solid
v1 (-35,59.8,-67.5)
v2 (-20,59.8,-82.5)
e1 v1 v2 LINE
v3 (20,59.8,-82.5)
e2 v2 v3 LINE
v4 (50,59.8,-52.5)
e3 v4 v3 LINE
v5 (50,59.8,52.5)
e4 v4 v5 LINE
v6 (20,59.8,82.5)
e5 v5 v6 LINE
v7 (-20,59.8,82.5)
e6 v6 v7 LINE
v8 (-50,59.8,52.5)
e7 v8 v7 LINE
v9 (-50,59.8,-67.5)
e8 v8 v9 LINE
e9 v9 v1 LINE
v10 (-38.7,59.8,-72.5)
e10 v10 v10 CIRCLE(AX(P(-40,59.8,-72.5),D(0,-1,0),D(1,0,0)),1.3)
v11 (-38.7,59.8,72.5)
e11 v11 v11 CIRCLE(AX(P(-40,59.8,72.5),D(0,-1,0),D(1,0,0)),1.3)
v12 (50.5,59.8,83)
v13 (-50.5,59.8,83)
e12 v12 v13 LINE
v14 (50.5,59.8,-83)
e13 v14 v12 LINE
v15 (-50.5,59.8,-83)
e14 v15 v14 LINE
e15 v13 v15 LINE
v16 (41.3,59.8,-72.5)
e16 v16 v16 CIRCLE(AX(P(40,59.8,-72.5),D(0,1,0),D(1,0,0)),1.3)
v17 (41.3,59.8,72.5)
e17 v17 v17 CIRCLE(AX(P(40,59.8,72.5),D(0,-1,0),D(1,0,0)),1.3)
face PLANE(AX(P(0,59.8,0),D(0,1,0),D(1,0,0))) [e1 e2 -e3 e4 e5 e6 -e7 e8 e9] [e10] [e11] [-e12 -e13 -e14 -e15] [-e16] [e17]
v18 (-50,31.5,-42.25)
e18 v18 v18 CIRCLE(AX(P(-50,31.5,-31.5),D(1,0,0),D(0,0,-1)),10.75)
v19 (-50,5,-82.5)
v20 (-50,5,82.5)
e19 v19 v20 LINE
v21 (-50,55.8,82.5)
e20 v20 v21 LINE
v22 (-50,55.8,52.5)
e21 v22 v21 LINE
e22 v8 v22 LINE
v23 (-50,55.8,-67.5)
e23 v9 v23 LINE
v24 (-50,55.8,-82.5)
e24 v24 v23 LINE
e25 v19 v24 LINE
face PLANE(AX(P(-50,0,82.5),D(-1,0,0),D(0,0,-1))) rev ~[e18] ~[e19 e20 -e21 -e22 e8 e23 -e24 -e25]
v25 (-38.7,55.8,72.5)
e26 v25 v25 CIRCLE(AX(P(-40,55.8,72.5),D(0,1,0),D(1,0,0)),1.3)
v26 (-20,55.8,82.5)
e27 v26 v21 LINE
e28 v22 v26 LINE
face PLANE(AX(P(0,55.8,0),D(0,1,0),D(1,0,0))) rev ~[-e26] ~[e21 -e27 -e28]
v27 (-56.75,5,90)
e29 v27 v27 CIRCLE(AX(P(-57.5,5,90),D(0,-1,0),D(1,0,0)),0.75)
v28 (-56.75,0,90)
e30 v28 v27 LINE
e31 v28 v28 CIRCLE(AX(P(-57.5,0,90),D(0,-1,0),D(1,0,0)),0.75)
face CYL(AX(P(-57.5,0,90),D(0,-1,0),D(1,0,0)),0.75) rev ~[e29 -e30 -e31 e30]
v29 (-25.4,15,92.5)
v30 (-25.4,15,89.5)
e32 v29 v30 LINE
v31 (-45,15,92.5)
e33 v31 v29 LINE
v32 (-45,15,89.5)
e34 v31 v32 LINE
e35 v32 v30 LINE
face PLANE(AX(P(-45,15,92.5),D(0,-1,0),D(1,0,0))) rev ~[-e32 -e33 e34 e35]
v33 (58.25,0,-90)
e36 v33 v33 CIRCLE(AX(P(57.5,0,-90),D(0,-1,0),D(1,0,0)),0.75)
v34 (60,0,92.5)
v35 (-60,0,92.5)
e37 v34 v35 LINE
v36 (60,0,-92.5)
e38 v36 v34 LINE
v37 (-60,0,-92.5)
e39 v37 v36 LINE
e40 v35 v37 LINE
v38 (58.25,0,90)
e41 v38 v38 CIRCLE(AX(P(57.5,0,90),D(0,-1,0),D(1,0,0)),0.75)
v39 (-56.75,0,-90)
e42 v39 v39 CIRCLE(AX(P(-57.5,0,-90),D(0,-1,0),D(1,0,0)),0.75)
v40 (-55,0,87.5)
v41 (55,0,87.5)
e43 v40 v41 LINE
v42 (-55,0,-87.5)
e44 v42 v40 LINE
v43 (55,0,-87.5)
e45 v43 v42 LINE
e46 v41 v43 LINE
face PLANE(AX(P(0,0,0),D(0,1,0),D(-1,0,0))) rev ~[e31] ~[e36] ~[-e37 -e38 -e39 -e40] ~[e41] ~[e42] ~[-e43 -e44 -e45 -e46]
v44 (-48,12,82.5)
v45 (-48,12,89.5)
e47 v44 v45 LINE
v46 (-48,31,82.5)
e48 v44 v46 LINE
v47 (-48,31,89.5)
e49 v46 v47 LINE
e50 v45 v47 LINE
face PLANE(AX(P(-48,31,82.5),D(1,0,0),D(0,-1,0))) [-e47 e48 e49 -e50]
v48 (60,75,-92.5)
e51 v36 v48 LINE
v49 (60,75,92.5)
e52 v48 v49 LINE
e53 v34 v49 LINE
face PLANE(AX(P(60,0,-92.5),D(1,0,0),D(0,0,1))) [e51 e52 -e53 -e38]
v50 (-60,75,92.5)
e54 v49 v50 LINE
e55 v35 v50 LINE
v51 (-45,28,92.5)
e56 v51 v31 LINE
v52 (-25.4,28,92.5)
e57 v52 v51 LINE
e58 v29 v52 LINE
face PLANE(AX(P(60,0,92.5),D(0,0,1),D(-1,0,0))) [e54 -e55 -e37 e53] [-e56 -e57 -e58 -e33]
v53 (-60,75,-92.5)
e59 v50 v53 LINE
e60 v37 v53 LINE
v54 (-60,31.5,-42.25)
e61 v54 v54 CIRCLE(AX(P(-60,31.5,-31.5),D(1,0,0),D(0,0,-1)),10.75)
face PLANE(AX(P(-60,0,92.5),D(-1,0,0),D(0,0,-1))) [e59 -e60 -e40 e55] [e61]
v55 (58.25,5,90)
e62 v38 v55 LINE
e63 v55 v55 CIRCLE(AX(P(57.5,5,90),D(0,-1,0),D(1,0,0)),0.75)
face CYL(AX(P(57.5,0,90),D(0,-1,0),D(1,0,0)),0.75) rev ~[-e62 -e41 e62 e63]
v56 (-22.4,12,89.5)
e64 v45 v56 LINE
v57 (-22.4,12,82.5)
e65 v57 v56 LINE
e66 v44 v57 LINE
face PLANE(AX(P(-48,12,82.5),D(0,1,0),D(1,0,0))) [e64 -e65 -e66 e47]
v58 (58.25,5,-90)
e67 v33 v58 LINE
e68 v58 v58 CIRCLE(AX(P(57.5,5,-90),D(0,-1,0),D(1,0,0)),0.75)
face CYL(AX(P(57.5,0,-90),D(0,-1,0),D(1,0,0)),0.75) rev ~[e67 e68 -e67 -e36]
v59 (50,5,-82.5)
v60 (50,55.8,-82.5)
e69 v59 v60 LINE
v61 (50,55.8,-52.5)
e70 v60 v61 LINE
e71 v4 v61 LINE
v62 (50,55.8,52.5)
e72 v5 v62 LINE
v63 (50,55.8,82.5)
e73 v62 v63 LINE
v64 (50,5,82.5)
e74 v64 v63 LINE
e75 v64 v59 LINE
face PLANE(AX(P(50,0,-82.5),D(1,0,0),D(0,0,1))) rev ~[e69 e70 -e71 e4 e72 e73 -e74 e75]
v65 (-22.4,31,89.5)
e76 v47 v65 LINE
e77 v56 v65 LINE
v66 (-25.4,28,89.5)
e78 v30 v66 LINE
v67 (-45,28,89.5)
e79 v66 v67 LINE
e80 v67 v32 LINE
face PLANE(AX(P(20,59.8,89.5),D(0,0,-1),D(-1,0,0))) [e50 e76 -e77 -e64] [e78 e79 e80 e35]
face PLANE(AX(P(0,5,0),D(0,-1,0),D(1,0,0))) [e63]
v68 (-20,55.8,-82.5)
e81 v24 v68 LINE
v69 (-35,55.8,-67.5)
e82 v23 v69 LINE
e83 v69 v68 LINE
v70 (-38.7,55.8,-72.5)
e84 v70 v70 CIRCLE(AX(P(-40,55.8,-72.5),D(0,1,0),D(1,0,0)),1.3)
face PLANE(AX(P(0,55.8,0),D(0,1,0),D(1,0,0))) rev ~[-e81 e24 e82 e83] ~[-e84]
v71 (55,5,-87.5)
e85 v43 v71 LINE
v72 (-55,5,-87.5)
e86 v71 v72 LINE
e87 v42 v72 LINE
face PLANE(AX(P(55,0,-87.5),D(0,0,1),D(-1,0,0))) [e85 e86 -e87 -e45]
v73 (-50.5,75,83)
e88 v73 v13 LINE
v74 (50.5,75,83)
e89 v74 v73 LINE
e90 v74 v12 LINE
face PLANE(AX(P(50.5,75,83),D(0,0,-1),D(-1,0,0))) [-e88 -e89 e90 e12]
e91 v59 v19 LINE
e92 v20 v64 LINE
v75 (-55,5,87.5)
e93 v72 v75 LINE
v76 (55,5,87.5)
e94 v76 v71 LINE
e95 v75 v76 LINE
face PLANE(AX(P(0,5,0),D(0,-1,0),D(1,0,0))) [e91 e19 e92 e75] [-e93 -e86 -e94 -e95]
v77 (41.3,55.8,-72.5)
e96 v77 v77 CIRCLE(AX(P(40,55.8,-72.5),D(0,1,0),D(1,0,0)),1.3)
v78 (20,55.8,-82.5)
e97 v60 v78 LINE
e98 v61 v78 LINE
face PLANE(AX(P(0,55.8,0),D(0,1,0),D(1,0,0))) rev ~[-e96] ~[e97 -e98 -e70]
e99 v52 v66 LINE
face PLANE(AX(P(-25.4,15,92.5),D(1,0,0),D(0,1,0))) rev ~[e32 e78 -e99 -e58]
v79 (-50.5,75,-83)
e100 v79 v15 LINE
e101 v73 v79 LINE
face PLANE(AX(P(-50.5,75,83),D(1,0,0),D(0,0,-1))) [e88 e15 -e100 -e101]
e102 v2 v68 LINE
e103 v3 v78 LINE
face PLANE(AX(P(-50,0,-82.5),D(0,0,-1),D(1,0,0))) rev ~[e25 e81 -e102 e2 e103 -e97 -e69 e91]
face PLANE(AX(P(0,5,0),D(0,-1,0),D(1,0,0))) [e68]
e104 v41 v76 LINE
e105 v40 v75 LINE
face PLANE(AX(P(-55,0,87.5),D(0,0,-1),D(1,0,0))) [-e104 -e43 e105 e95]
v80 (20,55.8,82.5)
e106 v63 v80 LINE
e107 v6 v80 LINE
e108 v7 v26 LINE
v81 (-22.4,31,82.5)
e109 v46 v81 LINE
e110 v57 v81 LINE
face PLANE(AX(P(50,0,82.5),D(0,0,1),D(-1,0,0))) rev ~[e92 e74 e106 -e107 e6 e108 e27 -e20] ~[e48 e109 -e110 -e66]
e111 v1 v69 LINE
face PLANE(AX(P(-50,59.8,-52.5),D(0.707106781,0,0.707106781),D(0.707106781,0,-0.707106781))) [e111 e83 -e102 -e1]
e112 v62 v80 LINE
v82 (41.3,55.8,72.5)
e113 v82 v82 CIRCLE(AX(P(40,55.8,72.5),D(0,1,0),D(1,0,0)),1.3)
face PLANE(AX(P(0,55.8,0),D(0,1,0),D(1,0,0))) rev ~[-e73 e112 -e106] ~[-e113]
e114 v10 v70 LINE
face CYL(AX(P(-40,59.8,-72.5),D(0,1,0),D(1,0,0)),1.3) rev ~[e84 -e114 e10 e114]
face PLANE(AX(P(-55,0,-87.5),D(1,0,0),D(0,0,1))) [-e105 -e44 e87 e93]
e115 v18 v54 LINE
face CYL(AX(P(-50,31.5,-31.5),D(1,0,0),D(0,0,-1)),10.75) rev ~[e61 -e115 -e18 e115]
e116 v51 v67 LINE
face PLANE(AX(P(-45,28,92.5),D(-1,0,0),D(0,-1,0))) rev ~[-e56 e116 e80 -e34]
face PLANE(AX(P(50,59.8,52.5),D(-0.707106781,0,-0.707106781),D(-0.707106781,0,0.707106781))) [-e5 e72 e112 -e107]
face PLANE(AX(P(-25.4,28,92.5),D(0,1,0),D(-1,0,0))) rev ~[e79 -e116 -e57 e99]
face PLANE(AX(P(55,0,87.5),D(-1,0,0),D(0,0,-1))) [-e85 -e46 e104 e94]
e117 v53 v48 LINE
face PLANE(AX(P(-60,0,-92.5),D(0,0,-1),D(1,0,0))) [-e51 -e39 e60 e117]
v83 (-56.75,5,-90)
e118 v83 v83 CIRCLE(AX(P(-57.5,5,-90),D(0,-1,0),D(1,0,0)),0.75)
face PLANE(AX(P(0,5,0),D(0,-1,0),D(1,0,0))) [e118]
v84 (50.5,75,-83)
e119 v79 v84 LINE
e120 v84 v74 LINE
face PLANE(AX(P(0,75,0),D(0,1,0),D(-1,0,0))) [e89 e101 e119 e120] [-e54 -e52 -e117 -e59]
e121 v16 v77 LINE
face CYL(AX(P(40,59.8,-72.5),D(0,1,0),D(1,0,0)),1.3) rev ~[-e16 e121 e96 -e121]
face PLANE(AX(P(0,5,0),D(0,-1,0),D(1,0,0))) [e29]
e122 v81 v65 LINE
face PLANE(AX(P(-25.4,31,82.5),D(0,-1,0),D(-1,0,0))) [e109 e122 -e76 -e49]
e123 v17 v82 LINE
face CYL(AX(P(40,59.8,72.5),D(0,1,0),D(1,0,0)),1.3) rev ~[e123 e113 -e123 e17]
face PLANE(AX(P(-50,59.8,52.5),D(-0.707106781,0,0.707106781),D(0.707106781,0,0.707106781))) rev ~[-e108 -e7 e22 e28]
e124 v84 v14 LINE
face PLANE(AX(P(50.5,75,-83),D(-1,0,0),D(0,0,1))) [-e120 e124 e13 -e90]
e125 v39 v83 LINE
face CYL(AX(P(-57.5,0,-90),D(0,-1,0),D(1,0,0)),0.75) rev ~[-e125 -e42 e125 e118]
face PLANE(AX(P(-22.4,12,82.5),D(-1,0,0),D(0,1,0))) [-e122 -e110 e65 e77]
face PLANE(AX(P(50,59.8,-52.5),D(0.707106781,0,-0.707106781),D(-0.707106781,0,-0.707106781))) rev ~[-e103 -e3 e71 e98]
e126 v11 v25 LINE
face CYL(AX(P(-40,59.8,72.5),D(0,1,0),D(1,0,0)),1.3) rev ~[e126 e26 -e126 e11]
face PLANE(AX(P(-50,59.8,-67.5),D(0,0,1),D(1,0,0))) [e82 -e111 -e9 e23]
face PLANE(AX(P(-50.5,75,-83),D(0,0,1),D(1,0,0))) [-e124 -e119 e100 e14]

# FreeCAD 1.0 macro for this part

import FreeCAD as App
import Part
import Sketcher
from FreeCAD import Vector

doc = App.newDocument("Part")
body = doc.addObject("PartDesign::Body", "Body")

sketch1 = doc.addObject("Sketcher::SketchObject", "Sketch")
body.addObject(sketch1)
sketch1.AttachmentSupport = (doc.XZ_Plane, [""])
sketch1.MapMode = "FlatFace"
sketch1.addGeometry([
    Part.LineSegment(Vector(-60, 92, 0), Vector(60, 92, 0)),
    Part.LineSegment(Vector(60, 92, 0), Vector(60, -92, 0)),
    Part.LineSegment(Vector(60, -92, 0), Vector(-60, -92, 0)),
    Part.LineSegment(Vector(-60, -92, 0), Vector(-60, 92, 0)),
    Part.LineSegment(Vector(50, -82, 0), Vector(50, 82, 0)),
    Part.LineSegment(Vector(50, 82, 0), Vector(-50, 82, 0)),
    Part.LineSegment(Vector(-50, 82, 0), Vector(-50, -82, 0)),
    Part.LineSegment(Vector(-50, -82, 0), Vector(50, -82, 0)),
], False)
sketch1.addConstraint([
    Sketcher.Constraint("Coincident", 0, 2, 1, 1),
    Sketcher.Constraint("Coincident", 1, 2, 2, 1),
    Sketcher.Constraint("Coincident", 2, 2, 3, 1),
    Sketcher.Constraint("Coincident", 3, 2, 0, 1),
    Sketcher.Constraint("Coincident", 4, 2, 5, 1),
    Sketcher.Constraint("Coincident", 5, 2, 6, 1),
    Sketcher.Constraint("Coincident", 6, 2, 7, 1),
    Sketcher.Constraint("Coincident", 7, 2, 4, 1),
    Sketcher.Constraint("Horizontal", 0),
    Sketcher.Constraint("Vertical", 1),
    Sketcher.Constraint("Horizontal", 2),
    Sketcher.Constraint("Vertical", 3),
    Sketcher.Constraint("Vertical", 4),
    Sketcher.Constraint("Horizontal", 5),
    Sketcher.Constraint("Vertical", 6),
    Sketcher.Constraint("Horizontal", 7),
    Sketcher.Constraint("Symmetric", 0, 2, 2, 2, -1, 1),
    Sketcher.Constraint("Symmetric", 4, 2, 6, 2, -1, 1),
    Sketcher.Constraint("DistanceX", 0, 1, 0, 2, 120.0),
    Sketcher.Constraint("DistanceX", 5, 2, 5, 1, 100.0),
    Sketcher.Constraint("DistanceY", 1, 2, 1, 1, 185.0),
    Sketcher.Constraint("DistanceY", 4, 1, 4, 2, 165.0),
])
pad1 = doc.addObject("PartDesign::Pad", "Pad")
body.addObject(pad1)
pad1.Profile = sketch1
pad1.Length = 75
pad1.Reversed = True

sketch2 = doc.addObject("Sketcher::SketchObject", "Sketch001")
body.addObject(sketch2)
sketch2.AttachmentSupport = (doc.XZ_Plane, [""])
sketch2.MapMode = "FlatFace"
sketch2.AttachmentOffset = App.Placement(Vector(0, 0, -59.8), App.Rotation())
sketch2.addGeometry([
    Part.LineSegment(Vector(50, -52, 0), Vector(50, -82, 0)),
    Part.LineSegment(Vector(50, -82, 0), Vector(20, -82, 0)),
    Part.LineSegment(Vector(20, -82, 0), Vector(50, -52, 0)),
    Part.LineSegment(Vector(50, 82, 0), Vector(50, 52, 0)),
    Part.LineSegment(Vector(50, 52, 0), Vector(20, 82, 0)),
    Part.LineSegment(Vector(20, 82, 0), Vector(50, 82, 0)),
    Part.LineSegment(Vector(-50, -52, 0), Vector(-20, -82, 0)),
    Part.LineSegment(Vector(-20, -82, 0), Vector(-50, -82, 0)),
    Part.LineSegment(Vector(-50, -82, 0), Vector(-50, -52, 0)),
    Part.LineSegment(Vector(-50, 82, 0), Vector(-20, 82, 0)),
    Part.LineSegment(Vector(-20, 82, 0), Vector(-50, 52, 0)),
    Part.LineSegment(Vector(-50, 52, 0), Vector(-50, 82, 0)),
], False)
sketch2.addConstraint([
    Sketcher.Constraint("Coincident", 0, 2, 1, 1),
    Sketcher.Constraint("Coincident", 1, 2, 2, 1),
    Sketcher.Constraint("Coincident", 2, 2, 0, 1),
    Sketcher.Constraint("Coincident", 3, 2, 4, 1),
    Sketcher.Constraint("Coincident", 4, 2, 5, 1),
    Sketcher.Constraint("Coincident", 5, 2, 3, 1),
    Sketcher.Constraint("Coincident", 6, 2, 7, 1),
    Sketcher.Constraint("Coincident", 7, 2, 8, 1),
    Sketcher.Constraint("Coincident", 8, 2, 6, 1),
    Sketcher.Constraint("Coincident", 9, 2, 10, 1),
    Sketcher.Constraint("Coincident", 10, 2, 11, 1),
    Sketcher.Constraint("Coincident", 11, 2, 9, 1),
    Sketcher.Constraint("Vertical", 0),
    Sketcher.Constraint("Horizontal", 1),
    Sketcher.Constraint("Vertical", 3),
    Sketcher.Constraint("Horizontal", 5),
    Sketcher.Constraint("Horizontal", 7),
    Sketcher.Constraint("Vertical", 8),
    Sketcher.Constraint("Horizontal", 9),
    Sketcher.Constraint("Vertical", 11),
    Sketcher.Constraint("Symmetric", 4, 2, 6, 2, -1, 1),
    Sketcher.Constraint("Symmetric", 3, 2, 8, 2, -1, 1),
    Sketcher.Constraint("Symmetric", 1, 2, 9, 2, -1, 1),
    Sketcher.Constraint("Symmetric", 2, 2, 10, 2, -1, 1),
    Sketcher.Constraint("Symmetric", 1, 2, 6, 2, -2),
    Sketcher.Constraint("Symmetric", 2, 2, 8, 2, -2),
    Sketcher.Constraint("Perpendicular", 2, 4),
    Sketcher.Constraint("DistanceX", 1, 2, 1, 1, 30.0),
    Sketcher.Constraint("DistanceX", -1, 1, 0, 2, 50.0),
    Sketcher.Constraint("DistanceY", 2, 2, 3, 2, 105.0),
])
pad2 = doc.addObject("PartDesign::Pad", "Pad001")
body.addObject(pad2)
pad2.Profile = sketch2
pad2.Length = 4

sketch3 = doc.addObject("Sketcher::SketchObject", "Sketch002")
body.addObject(sketch3)
sketch3.AttachmentSupport = (doc.XZ_Plane, [""])
sketch3.MapMode = "FlatFace"
sketch3.AttachmentOffset = App.Placement(Vector(0, 0, -59.8), App.Rotation())
sketch3.addGeometry([
    Part.Circle(Vector(40, -72.5, 0), Vector(0, 0, 1), 1.3),
    Part.Circle(Vector(40, 72.5, 0), Vector(0, 0, 1), 1.3),
    Part.Circle(Vector(-40, -72.5, 0), Vector(0, 0, 1), 1.3),
    Part.Circle(Vector(-40, 72.5, 0), Vector(0, 0, 1), 1.3),
], False)
sketch3.addConstraint([
    Sketcher.Constraint("Equal", 0, 1),
    Sketcher.Constraint("Equal", 1, 2),
    Sketcher.Constraint("Equal", 2, 3),
    Sketcher.Constraint("Symmetric", 1, 3, 2, 3, -1, 1),
    Sketcher.Constraint("Symmetric", 0, 3, 3, 3, -1, 1),
    Sketcher.Constraint("Symmetric", 0, 3, 2, 3, -2),
    Sketcher.Constraint("Diameter", 0, 2.6),
    Sketcher.Constraint("DistanceX", -1, 1, 0, 3, 40.0),
    Sketcher.Constraint("DistanceY", 0, 3, 1, 3, 145.0),
])
pocket1 = doc.addObject("PartDesign::Pocket", "Pocket")
body.addObject(pocket1)
pocket1.Profile = sketch3
pocket1.Length = 4
pocket1.Reversed = True

sketch4 = doc.addObject("Sketcher::SketchObject", "Sketch003")
body.addObject(sketch4)
sketch4.AttachmentSupport = (doc.XZ_Plane, [""])
sketch4.MapMode = "FlatFace"
sketch4.addGeometry([
    Part.LineSegment(Vector(-55, -88, 0), Vector(55, -88, 0)),
    Part.LineSegment(Vector(55, -88, 0), Vector(55, 88, 0)),
    Part.LineSegment(Vector(55, 88, 0), Vector(-55, 88, 0)),
    Part.LineSegment(Vector(-55, 88, 0), Vector(-55, -88, 0)),
], False)
sketch4.addConstraint([
    Sketcher.Constraint("Coincident", 0, 2, 1, 1),
    Sketcher.Constraint("Coincident", 1, 2, 2, 1),
    Sketcher.Constraint("Coincident", 2, 2, 3, 1),
    Sketcher.Constraint("Coincident", 3, 2, 0, 1),
    Sketcher.Constraint("Horizontal", 0),
    Sketcher.Constraint("Vertical", 1),
    Sketcher.Constraint("Horizontal", 2),
    Sketcher.Constraint("Vertical", 3),
    Sketcher.Constraint("Symmetric", 0, 2, 2, 2, -1, 1),
    Sketcher.Constraint("DistanceX", 0, 1, 0, 2, 110.0),
    Sketcher.Constraint("DistanceY", 1, 1, 1, 2, 175.0),
])
pocket2 = doc.addObject("PartDesign::Pocket", "Pocket001")
body.addObject(pocket2)
pocket2.Profile = sketch4
pocket2.Length = 5

sketch5 = doc.addObject("Sketcher::SketchObject", "Sketch004")
body.addObject(sketch5)
sketch5.AttachmentSupport = (doc.XZ_Plane, [""])
sketch5.MapMode = "FlatFace"
sketch5.addGeometry([
    Part.Circle(Vector(-57.5, -90, 0), Vector(0, 0, 1), 0.8),
    Part.Circle(Vector(-57.5, 90, 0), Vector(0, 0, 1), 0.8),
    Part.Circle(Vector(57.5, 90, 0), Vector(0, 0, 1), 0.8),
    Part.Circle(Vector(57.5, -90, 0), Vector(0, 0, 1), 0.8),
], False)
sketch5.addConstraint([
    Sketcher.Constraint("Equal", 0, 1),
    Sketcher.Constraint("Equal", 1, 2),
    Sketcher.Constraint("Equal", 2, 3),
    Sketcher.Constraint("Symmetric", 0, 3, 2, 3, -1, 1),
    Sketcher.Constraint("Symmetric", 1, 3, 3, 3, -1, 1),
    Sketcher.Constraint("Symmetric", 1, 3, 2, 3, -2),
    Sketcher.Constraint("Diameter", 0, 1.5),
    Sketcher.Constraint("DistanceY", 0, 3, -1, 1, 90.0),
    Sketcher.Constraint("DistanceX", 1, 3, 2, 3, 115.0),
])
pocket3 = doc.addObject("PartDesign::Pocket", "Pocket002")
body.addObject(pocket3)
pocket3.Profile = sketch5
pocket3.Length = 5

sketch6 = doc.addObject("Sketcher::SketchObject", "Sketch005")
body.addObject(sketch6)
sketch6.AttachmentSupport = (doc.XZ_Plane, [""])
sketch6.MapMode = "FlatFace"
sketch6.AttachmentOffset = App.Placement(Vector(0, 0, -75), App.Rotation())
sketch6.addGeometry([
    Part.LineSegment(Vector(50, -83, 0), Vector(-50, -83, 0)),
    Part.LineSegment(Vector(-50, -83, 0), Vector(-50, 83, 0)),
    Part.LineSegment(Vector(-50, 83, 0), Vector(50, 83, 0)),
    Part.LineSegment(Vector(50, 83, 0), Vector(50, -83, 0)),
], False)
sketch6.addConstraint([
    Sketcher.Constraint("Coincident", 0, 2, 1, 1),
    Sketcher.Constraint("Coincident", 1, 2, 2, 1),
    Sketcher.Constraint("Coincident", 2, 2, 3, 1),
    Sketcher.Constraint("Coincident", 3, 2, 0, 1),
    Sketcher.Constraint("Horizontal", 0),
    Sketcher.Constraint("Vertical", 1),
    Sketcher.Constraint("Horizontal", 2),
    Sketcher.Constraint("Vertical", 3),
    Sketcher.Constraint("Symmetric", 0, 2, 2, 2, -1, 1),
    Sketcher.Constraint("DistanceX", 0, 2, 0, 1, 101.0),
    Sketcher.Constraint("DistanceY", 1, 1, 1, 2, 166.0),
])
pocket4 = doc.addObject("PartDesign::Pocket", "Pocket003")
body.addObject(pocket4)
pocket4.Profile = sketch6
pocket4.Length = 15.2
pocket4.Reversed = True

sketch7 = doc.addObject("Sketcher::SketchObject", "Sketch006")
body.addObject(sketch7)
sketch7.AttachmentSupport = (doc.XZ_Plane, [""])
sketch7.MapMode = "FlatFace"
sketch7.AttachmentOffset = App.Placement(Vector(0, 0, -59.8), App.Rotation())
sketch7.addGeometry([
    Part.LineSegment(Vector(-35, -52, 0), Vector(-35, -68, 0)),
    Part.LineSegment(Vector(-35, -68, 0), Vector(-50, -68, 0)),
    Part.LineSegment(Vector(-50, -68, 0), Vector(-50, -52, 0)),
    Part.LineSegment(Vector(-50, -52, 0), Vector(-35, -52, 0)),
], False)
sketch7.addConstraint([
    Sketcher.Constraint("Coincident", 0, 2, 1, 1),
    Sketcher.Constraint("Coincident", 1, 2, 2, 1),
    Sketcher.Constraint("Coincident", 2, 2, 3, 1),
    Sketcher.Constraint("Coincident", 3, 2, 0, 1),
    Sketcher.Constraint("Vertical", 0),
    Sketcher.Constraint("Horizontal", 1),
    Sketcher.Constraint("Vertical", 2),
    Sketcher.Constraint("Horizontal", 3),
    Sketcher.Constraint("Equal", 3, 0),
    Sketcher.Constraint("DistanceX", 1, 2, 1, 1, 15.0),
    Sketcher.Constraint("DistanceX", 0, 2, -1, 1, 35.0),
    Sketcher.Constraint("DistanceY", 0, 2, -1, 1, 67.5),
])
pocket5 = doc.addObject("PartDesign::Pocket", "Pocket004")
body.addObject(pocket5)
pocket5.Profile = sketch7
pocket5.Length = 4
pocket5.Reversed = True

sketch8 = doc.addObject("Sketcher::SketchObject", "Sketch007")
body.addObject(sketch8)
sketch8.AttachmentSupport = (doc.XY_Plane, [""])
sketch8.MapMode = "FlatFace"
sketch8.AttachmentOffset = App.Placement(Vector(0, 0, 92.5), App.Rotation())
sketch8.addGeometry([
    Part.LineSegment(Vector(-45, 28, 0), Vector(-45, 15, 0)),
    Part.LineSegment(Vector(-45, 15, 0), Vector(-25, 15, 0)),
    Part.LineSegment(Vector(-25, 15, 0), Vector(-25, 28, 0)),
    Part.LineSegment(Vector(-25, 28, 0), Vector(-45, 28, 0)),
], False)
sketch8.addConstraint([
    Sketcher.Constraint("Coincident", 0, 2, 1, 1),
    Sketcher.Constraint("Coincident", 1, 2, 2, 1),
    Sketcher.Constraint("Coincident", 2, 2, 3, 1),
    Sketcher.Constraint("Coincident", 3, 2, 0, 1),
    Sketcher.Constraint("Vertical", 0),
    Sketcher.Constraint("Horizontal", 1),
    Sketcher.Constraint("Vertical", 2),
    Sketcher.Constraint("Horizontal", 3),
    Sketcher.Constraint("DistanceY", 0, 2, 0, 1, 13.0),
    Sketcher.Constraint("DistanceX", 1, 1, 1, 2, 19.6),
    Sketcher.Constraint("DistanceY", -1, 1, 0, 2, 15.0),
    Sketcher.Constraint("DistanceX", 0, 2, -1, 1, 45.0),
])
pocket6 = doc.addObject("PartDesign::Pocket", "Pocket005")
body.addObject(pocket6)
pocket6.Profile = sketch8
pocket6.Length = 10

sketch9 = doc.addObject("Sketcher::SketchObject", "Sketch008")
body.addObject(sketch9)
sketch9.AttachmentSupport = (doc.XY_Plane, [""])
sketch9.MapMode = "FlatFace"
sketch9.AttachmentOffset = App.Placement(Vector(0, 0, 82.5), App.Rotation())
sketch9.addGeometry([
    Part.LineSegment(Vector(-48, 31, 0), Vector(-22, 31, 0)),
    Part.LineSegment(Vector(-22, 31, 0), Vector(-22, 12, 0)),
    Part.LineSegment(Vector(-22, 12, 0), Vector(-48, 12, 0)),
    Part.LineSegment(Vector(-48, 12, 0), Vector(-48, 31, 0)),
], False)
sketch9.addConstraint([
    Sketcher.Constraint("Coincident", 0, 2, 1, 1),
    Sketcher.Constraint("Coincident", 1, 2, 2, 1),
    Sketcher.Constraint("Coincident", 2, 2, 3, 1),
    Sketcher.Constraint("Coincident", 3, 2, 0, 1),
    Sketcher.Constraint("Horizontal", 0),
    Sketcher.Constraint("Vertical", 1),
    Sketcher.Constraint("Horizontal", 2),
    Sketcher.Constraint("Vertical", 3),
    Sketcher.Constraint("DistanceY", 1, 2, 1, 1, 19.0),
    Sketcher.Constraint("DistanceX", 0, 1, 0, 2, 25.6),
    Sketcher.Constraint("DistanceY", -1, 1, 0, 2, 31.0),
    Sketcher.Constraint("DistanceX", 2, 2, -1, 1, 48.0),
])
pocket7 = doc.addObject("PartDesign::Pocket", "Pocket006")
body.addObject(pocket7)
pocket7.Profile = sketch9
pocket7.Length = 7
pocket7.Reversed = True

sketch10 = doc.addObject("Sketcher::SketchObject", "Sketch009")
body.addObject(sketch10)
sketch10.AttachmentSupport = (doc.YZ_Plane, [""])
sketch10.MapMode = "FlatFace"
sketch10.AttachmentOffset = App.Placement(Vector(0, 0, -50), App.Rotation())
sketch10.addGeometry(Part.Circle(Vector(32, -32, 0), Vector(0, 0, 1), 11), False)
sketch10.addConstraint([
    Sketcher.Constraint("Diameter", 0, 21.5),
    Sketcher.Constraint("DistanceX", -1, 1, 0, 3, 31.5),
    Sketcher.Constraint("DistanceY", 0, 3, -1, 1, 31.5),
])
pocket8 = doc.addObject("PartDesign::Pocket", "Pocket007")
body.addObject(pocket8)
pocket8.Profile = sketch10
pocket8.Length = 10

doc.recompute()
